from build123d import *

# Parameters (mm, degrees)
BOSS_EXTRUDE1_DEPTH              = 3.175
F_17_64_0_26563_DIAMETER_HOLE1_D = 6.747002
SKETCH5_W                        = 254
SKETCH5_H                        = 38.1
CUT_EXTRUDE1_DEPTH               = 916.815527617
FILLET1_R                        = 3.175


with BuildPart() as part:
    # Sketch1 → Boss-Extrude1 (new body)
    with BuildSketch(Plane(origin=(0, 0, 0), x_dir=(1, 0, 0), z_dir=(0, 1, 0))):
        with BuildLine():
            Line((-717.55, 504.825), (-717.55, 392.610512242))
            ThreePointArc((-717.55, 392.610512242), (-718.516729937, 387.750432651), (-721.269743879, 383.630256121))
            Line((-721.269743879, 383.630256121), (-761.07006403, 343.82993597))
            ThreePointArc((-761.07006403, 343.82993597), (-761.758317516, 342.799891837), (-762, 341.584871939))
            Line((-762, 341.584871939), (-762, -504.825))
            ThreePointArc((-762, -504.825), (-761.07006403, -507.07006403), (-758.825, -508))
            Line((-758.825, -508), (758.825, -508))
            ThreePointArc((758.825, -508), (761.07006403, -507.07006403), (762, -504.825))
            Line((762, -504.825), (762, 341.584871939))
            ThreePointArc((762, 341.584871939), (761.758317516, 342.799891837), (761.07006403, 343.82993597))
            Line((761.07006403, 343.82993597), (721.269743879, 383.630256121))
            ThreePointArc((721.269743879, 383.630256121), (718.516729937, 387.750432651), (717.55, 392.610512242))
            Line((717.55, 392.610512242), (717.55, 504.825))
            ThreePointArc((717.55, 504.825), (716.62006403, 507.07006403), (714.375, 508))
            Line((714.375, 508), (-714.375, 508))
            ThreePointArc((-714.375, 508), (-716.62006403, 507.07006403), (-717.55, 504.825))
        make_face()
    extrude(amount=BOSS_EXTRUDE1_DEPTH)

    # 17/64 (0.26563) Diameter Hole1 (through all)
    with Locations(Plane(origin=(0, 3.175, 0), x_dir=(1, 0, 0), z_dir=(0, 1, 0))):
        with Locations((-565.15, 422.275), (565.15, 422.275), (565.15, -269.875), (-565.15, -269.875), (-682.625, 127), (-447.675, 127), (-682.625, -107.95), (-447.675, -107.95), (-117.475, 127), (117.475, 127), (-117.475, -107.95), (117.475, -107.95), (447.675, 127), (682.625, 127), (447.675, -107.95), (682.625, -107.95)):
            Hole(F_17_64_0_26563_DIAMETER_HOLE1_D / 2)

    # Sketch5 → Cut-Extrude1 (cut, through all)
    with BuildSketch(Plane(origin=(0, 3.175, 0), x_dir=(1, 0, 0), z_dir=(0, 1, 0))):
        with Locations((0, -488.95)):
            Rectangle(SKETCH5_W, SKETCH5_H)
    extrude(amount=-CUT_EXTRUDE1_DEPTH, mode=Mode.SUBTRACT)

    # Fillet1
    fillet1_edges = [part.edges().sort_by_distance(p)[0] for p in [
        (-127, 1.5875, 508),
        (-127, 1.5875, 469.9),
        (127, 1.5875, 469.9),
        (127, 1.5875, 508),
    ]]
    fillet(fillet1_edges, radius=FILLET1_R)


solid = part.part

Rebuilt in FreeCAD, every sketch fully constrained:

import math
import FreeCAD as App
import Part
import Sketcher
from FreeCAD import Vector
Q = App.Units.Quantity


def edges_at(feature, points):
    """Names of the edges that pass closest to the given points."""
    edges = feature.Shape.Edges
    near = lambda p: min(range(len(edges)), key=lambda i: edges[i].distToShape(Part.Vertex(*p))[0])
    return sorted({f"Edge{near(p) + 1}" for p in points})

doc = App.newDocument("Part")
body = doc.addObject("PartDesign::Body", "Body")

# Sketch on XZ plane
sketch1 = body.newObject("Sketcher::SketchObject", "Sketch")
sketch1.AttachmentSupport = (doc.getObject("XZ_Plane"), [""])
sketch1.MapMode = "FlatFace"
sketch1.addGeometry([
    Part.LineSegment(Vector(-717.5, -504.8, 0), Vector(-717.5, -392.6, 0)),  # 0
    Part.ArcOfCircle(Part.Circle(Vector(-730.2, -392.6, 0), Vector(0, 0, 1), 12.7), math.radians(0), math.radians(45)),  # 1
    Part.LineSegment(Vector(-721.3, -383.6, 0), Vector(-761.1, -343.8, 0)),  # 2
    Part.ArcOfCircle(Part.Circle(Vector(-758.8, -341.6, 0), Vector(0, 0, 1), 3.2), math.radians(180), math.radians(225)),  # 3
    Part.LineSegment(Vector(-762, -341.6, 0), Vector(-762, 504.8, 0)),  # 4
    Part.ArcOfCircle(Part.Circle(Vector(-758.8, 504.8, 0), Vector(0, 0, 1), 3.2), math.radians(90), math.radians(180)),  # 5
    Part.LineSegment(Vector(-758.8, 508, 0), Vector(758.8, 508, 0)),  # 6
    Part.ArcOfCircle(Part.Circle(Vector(758.8, 504.8, 0), Vector(0, 0, 1), 3.2), math.radians(0), math.radians(90)),  # 7
    Part.LineSegment(Vector(762, 504.8, 0), Vector(762, -341.6, 0)),  # 8
    Part.ArcOfCircle(Part.Circle(Vector(758.8, -341.6, 0), Vector(0, 0, 1), 3.2), math.radians(-45), math.radians(0)),  # 9
    Part.LineSegment(Vector(761.1, -343.8, 0), Vector(721.3, -383.6, 0)),  # 10
    Part.ArcOfCircle(Part.Circle(Vector(730.2, -392.6, 0), Vector(0, 0, 1), 12.7), math.radians(135), math.radians(180)),  # 11
    Part.LineSegment(Vector(717.5, -392.6, 0), Vector(717.5, -504.8, 0)),  # 12
    Part.ArcOfCircle(Part.Circle(Vector(714.4, -504.8, 0), Vector(0, 0, 1), 3.2), math.radians(-90), math.radians(0)),  # 13
    Part.LineSegment(Vector(714.4, -508, 0), Vector(-714.4, -508, 0)),  # 14
    Part.ArcOfCircle(Part.Circle(Vector(-714.4, -504.8, 0), Vector(0, 0, 1), 3.2), math.radians(-180), math.radians(-90)),  # 15
], False)
sketch1.addConstraint([
    Sketcher.Constraint("Tangent", 0, 2, 1, 1),
    Sketcher.Constraint("Tangent", 1, 2, 2, 1),
    Sketcher.Constraint("Tangent", 2, 2, 3, 2),
    Sketcher.Constraint("Tangent", 3, 1, 4, 1),
    Sketcher.Constraint("Tangent", 4, 2, 5, 2),
    Sketcher.Constraint("Tangent", 5, 1, 6, 1),
    Sketcher.Constraint("Tangent", 6, 2, 7, 2),
    Sketcher.Constraint("Tangent", 7, 1, 8, 1),
    Sketcher.Constraint("Tangent", 8, 2, 9, 2),
    Sketcher.Constraint("Tangent", 9, 1, 10, 1),
    Sketcher.Constraint("Tangent", 10, 2, 11, 1),
    Sketcher.Constraint("Tangent", 11, 2, 12, 1),
    Sketcher.Constraint("Tangent", 12, 2, 13, 2),
    Sketcher.Constraint("Tangent", 13, 1, 14, 1),
    Sketcher.Constraint("Tangent", 14, 2, 15, 2),
    Sketcher.Constraint("Tangent", 15, 1, 0, 1),
    Sketcher.Constraint("Vertical", 0),
    Sketcher.Constraint("Vertical", 4),
    Sketcher.Constraint("Horizontal", 6),
    Sketcher.Constraint("Vertical", 8),
    Sketcher.Constraint("Vertical", 12),
    Sketcher.Constraint("Horizontal", 14),
    Sketcher.Constraint("Equal", 3, 5),
    Sketcher.Constraint("Equal", 5, 7),
    Sketcher.Constraint("Equal", 7, 9),
    Sketcher.Constraint("Equal", 1, 11),
    Sketcher.Constraint("Equal", 9, 13),
    Sketcher.Constraint("Equal", 13, 15),
    Sketcher.Constraint("Symmetric", 3, 3, 9, 3, -2),
    Sketcher.Constraint("Symmetric", 1, 3, 11, 3, -2),
    Sketcher.Constraint("Perpendicular", 2, 10),
    Sketcher.Constraint("Radius", 1, Q("0.5 in")),
    Sketcher.Constraint("DistanceX", 3, 1, -1, 1, Q("30 in")),
    Sketcher.Constraint("DistanceY", -1, 1, 5, 1, Q("20 in")),
    Sketcher.Constraint("DistanceY", 13, 1, -1, 1, Q("20 in")),
    Sketcher.Constraint("Radius", 3, Q("0.125 in")),
    Sketcher.Constraint("DistanceX", 3, 3, 13, 3, Q("58 in")),
    Sketcher.Constraint("DistanceY", 4, 1, 4, 2, Q("846.409872 mm")),
])
pad1 = body.newObject("PartDesign::Pad", "Pad")
pad1.Profile = sketch1
pad1.Length = Q("0.125 in")
pad1.Reversed = True

# Sketch on XZ plane
sketch2 = body.newObject("Sketcher::SketchObject", "Sketch001")
sketch2.AttachmentSupport = (doc.getObject("XZ_Plane"), [""])
sketch2.MapMode = "FlatFace"
sketch2.AttachmentOffset = App.Placement(Vector(0, 0, -0.125 * 25.4), App.Rotation())
sketch2.addGeometry([
    Part.Circle(Vector(-565.1, -422.3, 0), Vector(0, 0, 1), 3.4),  # 0
    Part.Circle(Vector(565.1, -422.3, 0), Vector(0, 0, 1), 3.4),  # 1
    Part.Circle(Vector(565.1, 269.9, 0), Vector(0, 0, 1), 3.4),  # 2
    Part.Circle(Vector(-565.1, 269.9, 0), Vector(0, 0, 1), 3.4),  # 3
    Part.Circle(Vector(-682.6, -127, 0), Vector(0, 0, 1), 3.4),  # 4
    Part.Circle(Vector(-447.7, -127, 0), Vector(0, 0, 1), 3.4),  # 5
    Part.Circle(Vector(-682.6, 108, 0), Vector(0, 0, 1), 3.4),  # 6
    Part.Circle(Vector(-447.7, 108, 0), Vector(0, 0, 1), 3.4),  # 7
    Part.Circle(Vector(-117.5, -127, 0), Vector(0, 0, 1), 3.4),  # 8
    Part.Circle(Vector(117.5, -127, 0), Vector(0, 0, 1), 3.4),  # 9
    Part.Circle(Vector(-117.5, 108, 0), Vector(0, 0, 1), 3.4),  # 10
    Part.Circle(Vector(117.5, 108, 0), Vector(0, 0, 1), 3.4),  # 11
    Part.Circle(Vector(447.7, -127, 0), Vector(0, 0, 1), 3.4),  # 12
    Part.Circle(Vector(682.6, -127, 0), Vector(0, 0, 1), 3.4),  # 13
    Part.Circle(Vector(447.7, 108, 0), Vector(0, 0, 1), 3.4),  # 14
    Part.Circle(Vector(682.6, 108, 0), Vector(0, 0, 1), 3.4),  # 15
], False)
sketch2.addConstraint([
    Sketcher.Constraint("Equal", 0, 1),
    Sketcher.Constraint("Equal", 1, 2),
    Sketcher.Constraint("Equal", 2, 3),
    Sketcher.Constraint("Equal", 3, 4),
    Sketcher.Constraint("Equal", 4, 5),
    Sketcher.Constraint("Equal", 5, 6),
    Sketcher.Constraint("Equal", 6, 7),
    Sketcher.Constraint("Equal", 7, 8),
    Sketcher.Constraint("Equal", 8, 9),
    Sketcher.Constraint("Equal", 9, 10),
    Sketcher.Constraint("Equal", 10, 11),
    Sketcher.Constraint("Equal", 11, 12),
    Sketcher.Constraint("Equal", 12, 13),
    Sketcher.Constraint("Equal", 13, 14),
    Sketcher.Constraint("Equal", 14, 15),
    Sketcher.Constraint("Symmetric", 0, 3, 1, 3, -2),
    Sketcher.Constraint("Symmetric", 2, 3, 3, 3, -2),
    Sketcher.Constraint("Symmetric", 8, 3, 9, 3, -2),
    Sketcher.Constraint("Symmetric", 10, 3, 11, 3, -2),
    Sketcher.Constraint("Symmetric", 5, 3, 12, 3, -2),
    Sketcher.Constraint("Symmetric", 4, 3, 13, 3, -2),
    Sketcher.Constraint("Symmetric", 7, 3, 14, 3, -2),
    Sketcher.Constraint("Symmetric", 6, 3, 15, 3, -2),
    Sketcher.Constraint("Horizontal", 4, 3, 5, 3),
    Sketcher.Constraint("Horizontal", 6, 3, 7, 3),
    Sketcher.Constraint("Horizontal", 5, 3, 8, 3),
    Sketcher.Constraint("Horizontal", 7, 3, 10, 3),
    Sketcher.Constraint("Vertical", 1, 3, 2, 3),
    Sketcher.Constraint("Vertical", 4, 3, 6, 3),
    Sketcher.Constraint("Vertical", 5, 3, 7, 3),
    Sketcher.Constraint("Vertical", 8, 3, 10, 3),
    Sketcher.Constraint("DistanceY", 4, 3, -1, 1, Q("5 in")),
    Sketcher.Constraint("DistanceX", 5, 3, 8, 3, Q("13 in")),
    Sketcher.Constraint("DistanceX", 0, 3, 1, 3, Q("44.5 in")),
    Sketcher.Constraint("DistanceY", -1, 1, 6, 3, Q("4.25 in")),
    Sketcher.Constraint("DistanceY", 1, 3, 2, 3, Q("27.25 in")),
    Sketcher.Constraint("DistanceX", 4, 3, 5, 3, Q("9.25 in")),
    Sketcher.Constraint("DistanceX", 8, 3, 9, 3, Q("9.25 in")),
    Sketcher.Constraint("DistanceY", 0, 3, -1, 1, Q("16.625 in")),
    Sketcher.Constraint("Diameter", 0, Q("6.747002 mm")),
])
doc.recompute()
hole = body.newObject("PartDesign::Hole", "Hole")
hole.Profile = sketch2
hole.ThreadType = "None"
hole.Diameter = 6.747002
hole.DepthType = "ThroughAll"
hole.Reversed = True

# Sketch on XZ plane
sketch3 = body.newObject("Sketcher::SketchObject", "Sketch002")
sketch3.AttachmentSupport = (doc.getObject("XZ_Plane"), [""])
sketch3.MapMode = "FlatFace"
sketch3.AttachmentOffset = App.Placement(Vector(0, 0, -0.125 * 25.4), App.Rotation())
sketch3.addGeometry([
    Part.LineSegment(Vector(-127, 470, 0), Vector(-127, 508, 0)),
    Part.LineSegment(Vector(-127, 508, 0), Vector(127, 508, 0)),
    Part.LineSegment(Vector(127, 508, 0), Vector(127, 470, 0)),
    Part.LineSegment(Vector(127, 470, 0), Vector(-127, 470, 0)),
], False)
sketch3.addConstraint([
    Sketcher.Constraint("Coincident", 0, 2, 1, 1),
    Sketcher.Constraint("Coincident", 1, 2, 2, 1),
    Sketcher.Constraint("Coincident", 2, 2, 3, 1),
    Sketcher.Constraint("Coincident", 3, 2, 0, 1),
    Sketcher.Constraint("Vertical", 0),
    Sketcher.Constraint("Horizontal", 1),
    Sketcher.Constraint("Vertical", 2),
    Sketcher.Constraint("Horizontal", 3),
    Sketcher.Constraint("DistanceX", 1, 1, 1, 2, Q("10 in")),
    Sketcher.Constraint("DistanceY", 0, 1, 0, 2, Q("1.5 in")),
    Sketcher.Constraint("DistanceX", 0, 2, -1, 1, Q("5 in")),
    Sketcher.Constraint("DistanceY", -1, 1, 0, 2, Q("20 in")),
])
pocket1 = body.newObject("PartDesign::Pocket", "Pocket")
pocket1.Profile = sketch3
pocket1.Type = "ThroughAll"
pocket1.Reversed = True
doc.recompute()

fillet = body.newObject("PartDesign::Fillet", "Fillet")
fillet.Base = (pocket1, edges_at(pocket1, [
    (-127, 1.587, 508),
    (-127, 1.587, 469.9),
    (127, 1.587, 469.9),
    (127, 1.587, 508),
]))
fillet.Radius = Q("0.125 in")

doc.recompute()
